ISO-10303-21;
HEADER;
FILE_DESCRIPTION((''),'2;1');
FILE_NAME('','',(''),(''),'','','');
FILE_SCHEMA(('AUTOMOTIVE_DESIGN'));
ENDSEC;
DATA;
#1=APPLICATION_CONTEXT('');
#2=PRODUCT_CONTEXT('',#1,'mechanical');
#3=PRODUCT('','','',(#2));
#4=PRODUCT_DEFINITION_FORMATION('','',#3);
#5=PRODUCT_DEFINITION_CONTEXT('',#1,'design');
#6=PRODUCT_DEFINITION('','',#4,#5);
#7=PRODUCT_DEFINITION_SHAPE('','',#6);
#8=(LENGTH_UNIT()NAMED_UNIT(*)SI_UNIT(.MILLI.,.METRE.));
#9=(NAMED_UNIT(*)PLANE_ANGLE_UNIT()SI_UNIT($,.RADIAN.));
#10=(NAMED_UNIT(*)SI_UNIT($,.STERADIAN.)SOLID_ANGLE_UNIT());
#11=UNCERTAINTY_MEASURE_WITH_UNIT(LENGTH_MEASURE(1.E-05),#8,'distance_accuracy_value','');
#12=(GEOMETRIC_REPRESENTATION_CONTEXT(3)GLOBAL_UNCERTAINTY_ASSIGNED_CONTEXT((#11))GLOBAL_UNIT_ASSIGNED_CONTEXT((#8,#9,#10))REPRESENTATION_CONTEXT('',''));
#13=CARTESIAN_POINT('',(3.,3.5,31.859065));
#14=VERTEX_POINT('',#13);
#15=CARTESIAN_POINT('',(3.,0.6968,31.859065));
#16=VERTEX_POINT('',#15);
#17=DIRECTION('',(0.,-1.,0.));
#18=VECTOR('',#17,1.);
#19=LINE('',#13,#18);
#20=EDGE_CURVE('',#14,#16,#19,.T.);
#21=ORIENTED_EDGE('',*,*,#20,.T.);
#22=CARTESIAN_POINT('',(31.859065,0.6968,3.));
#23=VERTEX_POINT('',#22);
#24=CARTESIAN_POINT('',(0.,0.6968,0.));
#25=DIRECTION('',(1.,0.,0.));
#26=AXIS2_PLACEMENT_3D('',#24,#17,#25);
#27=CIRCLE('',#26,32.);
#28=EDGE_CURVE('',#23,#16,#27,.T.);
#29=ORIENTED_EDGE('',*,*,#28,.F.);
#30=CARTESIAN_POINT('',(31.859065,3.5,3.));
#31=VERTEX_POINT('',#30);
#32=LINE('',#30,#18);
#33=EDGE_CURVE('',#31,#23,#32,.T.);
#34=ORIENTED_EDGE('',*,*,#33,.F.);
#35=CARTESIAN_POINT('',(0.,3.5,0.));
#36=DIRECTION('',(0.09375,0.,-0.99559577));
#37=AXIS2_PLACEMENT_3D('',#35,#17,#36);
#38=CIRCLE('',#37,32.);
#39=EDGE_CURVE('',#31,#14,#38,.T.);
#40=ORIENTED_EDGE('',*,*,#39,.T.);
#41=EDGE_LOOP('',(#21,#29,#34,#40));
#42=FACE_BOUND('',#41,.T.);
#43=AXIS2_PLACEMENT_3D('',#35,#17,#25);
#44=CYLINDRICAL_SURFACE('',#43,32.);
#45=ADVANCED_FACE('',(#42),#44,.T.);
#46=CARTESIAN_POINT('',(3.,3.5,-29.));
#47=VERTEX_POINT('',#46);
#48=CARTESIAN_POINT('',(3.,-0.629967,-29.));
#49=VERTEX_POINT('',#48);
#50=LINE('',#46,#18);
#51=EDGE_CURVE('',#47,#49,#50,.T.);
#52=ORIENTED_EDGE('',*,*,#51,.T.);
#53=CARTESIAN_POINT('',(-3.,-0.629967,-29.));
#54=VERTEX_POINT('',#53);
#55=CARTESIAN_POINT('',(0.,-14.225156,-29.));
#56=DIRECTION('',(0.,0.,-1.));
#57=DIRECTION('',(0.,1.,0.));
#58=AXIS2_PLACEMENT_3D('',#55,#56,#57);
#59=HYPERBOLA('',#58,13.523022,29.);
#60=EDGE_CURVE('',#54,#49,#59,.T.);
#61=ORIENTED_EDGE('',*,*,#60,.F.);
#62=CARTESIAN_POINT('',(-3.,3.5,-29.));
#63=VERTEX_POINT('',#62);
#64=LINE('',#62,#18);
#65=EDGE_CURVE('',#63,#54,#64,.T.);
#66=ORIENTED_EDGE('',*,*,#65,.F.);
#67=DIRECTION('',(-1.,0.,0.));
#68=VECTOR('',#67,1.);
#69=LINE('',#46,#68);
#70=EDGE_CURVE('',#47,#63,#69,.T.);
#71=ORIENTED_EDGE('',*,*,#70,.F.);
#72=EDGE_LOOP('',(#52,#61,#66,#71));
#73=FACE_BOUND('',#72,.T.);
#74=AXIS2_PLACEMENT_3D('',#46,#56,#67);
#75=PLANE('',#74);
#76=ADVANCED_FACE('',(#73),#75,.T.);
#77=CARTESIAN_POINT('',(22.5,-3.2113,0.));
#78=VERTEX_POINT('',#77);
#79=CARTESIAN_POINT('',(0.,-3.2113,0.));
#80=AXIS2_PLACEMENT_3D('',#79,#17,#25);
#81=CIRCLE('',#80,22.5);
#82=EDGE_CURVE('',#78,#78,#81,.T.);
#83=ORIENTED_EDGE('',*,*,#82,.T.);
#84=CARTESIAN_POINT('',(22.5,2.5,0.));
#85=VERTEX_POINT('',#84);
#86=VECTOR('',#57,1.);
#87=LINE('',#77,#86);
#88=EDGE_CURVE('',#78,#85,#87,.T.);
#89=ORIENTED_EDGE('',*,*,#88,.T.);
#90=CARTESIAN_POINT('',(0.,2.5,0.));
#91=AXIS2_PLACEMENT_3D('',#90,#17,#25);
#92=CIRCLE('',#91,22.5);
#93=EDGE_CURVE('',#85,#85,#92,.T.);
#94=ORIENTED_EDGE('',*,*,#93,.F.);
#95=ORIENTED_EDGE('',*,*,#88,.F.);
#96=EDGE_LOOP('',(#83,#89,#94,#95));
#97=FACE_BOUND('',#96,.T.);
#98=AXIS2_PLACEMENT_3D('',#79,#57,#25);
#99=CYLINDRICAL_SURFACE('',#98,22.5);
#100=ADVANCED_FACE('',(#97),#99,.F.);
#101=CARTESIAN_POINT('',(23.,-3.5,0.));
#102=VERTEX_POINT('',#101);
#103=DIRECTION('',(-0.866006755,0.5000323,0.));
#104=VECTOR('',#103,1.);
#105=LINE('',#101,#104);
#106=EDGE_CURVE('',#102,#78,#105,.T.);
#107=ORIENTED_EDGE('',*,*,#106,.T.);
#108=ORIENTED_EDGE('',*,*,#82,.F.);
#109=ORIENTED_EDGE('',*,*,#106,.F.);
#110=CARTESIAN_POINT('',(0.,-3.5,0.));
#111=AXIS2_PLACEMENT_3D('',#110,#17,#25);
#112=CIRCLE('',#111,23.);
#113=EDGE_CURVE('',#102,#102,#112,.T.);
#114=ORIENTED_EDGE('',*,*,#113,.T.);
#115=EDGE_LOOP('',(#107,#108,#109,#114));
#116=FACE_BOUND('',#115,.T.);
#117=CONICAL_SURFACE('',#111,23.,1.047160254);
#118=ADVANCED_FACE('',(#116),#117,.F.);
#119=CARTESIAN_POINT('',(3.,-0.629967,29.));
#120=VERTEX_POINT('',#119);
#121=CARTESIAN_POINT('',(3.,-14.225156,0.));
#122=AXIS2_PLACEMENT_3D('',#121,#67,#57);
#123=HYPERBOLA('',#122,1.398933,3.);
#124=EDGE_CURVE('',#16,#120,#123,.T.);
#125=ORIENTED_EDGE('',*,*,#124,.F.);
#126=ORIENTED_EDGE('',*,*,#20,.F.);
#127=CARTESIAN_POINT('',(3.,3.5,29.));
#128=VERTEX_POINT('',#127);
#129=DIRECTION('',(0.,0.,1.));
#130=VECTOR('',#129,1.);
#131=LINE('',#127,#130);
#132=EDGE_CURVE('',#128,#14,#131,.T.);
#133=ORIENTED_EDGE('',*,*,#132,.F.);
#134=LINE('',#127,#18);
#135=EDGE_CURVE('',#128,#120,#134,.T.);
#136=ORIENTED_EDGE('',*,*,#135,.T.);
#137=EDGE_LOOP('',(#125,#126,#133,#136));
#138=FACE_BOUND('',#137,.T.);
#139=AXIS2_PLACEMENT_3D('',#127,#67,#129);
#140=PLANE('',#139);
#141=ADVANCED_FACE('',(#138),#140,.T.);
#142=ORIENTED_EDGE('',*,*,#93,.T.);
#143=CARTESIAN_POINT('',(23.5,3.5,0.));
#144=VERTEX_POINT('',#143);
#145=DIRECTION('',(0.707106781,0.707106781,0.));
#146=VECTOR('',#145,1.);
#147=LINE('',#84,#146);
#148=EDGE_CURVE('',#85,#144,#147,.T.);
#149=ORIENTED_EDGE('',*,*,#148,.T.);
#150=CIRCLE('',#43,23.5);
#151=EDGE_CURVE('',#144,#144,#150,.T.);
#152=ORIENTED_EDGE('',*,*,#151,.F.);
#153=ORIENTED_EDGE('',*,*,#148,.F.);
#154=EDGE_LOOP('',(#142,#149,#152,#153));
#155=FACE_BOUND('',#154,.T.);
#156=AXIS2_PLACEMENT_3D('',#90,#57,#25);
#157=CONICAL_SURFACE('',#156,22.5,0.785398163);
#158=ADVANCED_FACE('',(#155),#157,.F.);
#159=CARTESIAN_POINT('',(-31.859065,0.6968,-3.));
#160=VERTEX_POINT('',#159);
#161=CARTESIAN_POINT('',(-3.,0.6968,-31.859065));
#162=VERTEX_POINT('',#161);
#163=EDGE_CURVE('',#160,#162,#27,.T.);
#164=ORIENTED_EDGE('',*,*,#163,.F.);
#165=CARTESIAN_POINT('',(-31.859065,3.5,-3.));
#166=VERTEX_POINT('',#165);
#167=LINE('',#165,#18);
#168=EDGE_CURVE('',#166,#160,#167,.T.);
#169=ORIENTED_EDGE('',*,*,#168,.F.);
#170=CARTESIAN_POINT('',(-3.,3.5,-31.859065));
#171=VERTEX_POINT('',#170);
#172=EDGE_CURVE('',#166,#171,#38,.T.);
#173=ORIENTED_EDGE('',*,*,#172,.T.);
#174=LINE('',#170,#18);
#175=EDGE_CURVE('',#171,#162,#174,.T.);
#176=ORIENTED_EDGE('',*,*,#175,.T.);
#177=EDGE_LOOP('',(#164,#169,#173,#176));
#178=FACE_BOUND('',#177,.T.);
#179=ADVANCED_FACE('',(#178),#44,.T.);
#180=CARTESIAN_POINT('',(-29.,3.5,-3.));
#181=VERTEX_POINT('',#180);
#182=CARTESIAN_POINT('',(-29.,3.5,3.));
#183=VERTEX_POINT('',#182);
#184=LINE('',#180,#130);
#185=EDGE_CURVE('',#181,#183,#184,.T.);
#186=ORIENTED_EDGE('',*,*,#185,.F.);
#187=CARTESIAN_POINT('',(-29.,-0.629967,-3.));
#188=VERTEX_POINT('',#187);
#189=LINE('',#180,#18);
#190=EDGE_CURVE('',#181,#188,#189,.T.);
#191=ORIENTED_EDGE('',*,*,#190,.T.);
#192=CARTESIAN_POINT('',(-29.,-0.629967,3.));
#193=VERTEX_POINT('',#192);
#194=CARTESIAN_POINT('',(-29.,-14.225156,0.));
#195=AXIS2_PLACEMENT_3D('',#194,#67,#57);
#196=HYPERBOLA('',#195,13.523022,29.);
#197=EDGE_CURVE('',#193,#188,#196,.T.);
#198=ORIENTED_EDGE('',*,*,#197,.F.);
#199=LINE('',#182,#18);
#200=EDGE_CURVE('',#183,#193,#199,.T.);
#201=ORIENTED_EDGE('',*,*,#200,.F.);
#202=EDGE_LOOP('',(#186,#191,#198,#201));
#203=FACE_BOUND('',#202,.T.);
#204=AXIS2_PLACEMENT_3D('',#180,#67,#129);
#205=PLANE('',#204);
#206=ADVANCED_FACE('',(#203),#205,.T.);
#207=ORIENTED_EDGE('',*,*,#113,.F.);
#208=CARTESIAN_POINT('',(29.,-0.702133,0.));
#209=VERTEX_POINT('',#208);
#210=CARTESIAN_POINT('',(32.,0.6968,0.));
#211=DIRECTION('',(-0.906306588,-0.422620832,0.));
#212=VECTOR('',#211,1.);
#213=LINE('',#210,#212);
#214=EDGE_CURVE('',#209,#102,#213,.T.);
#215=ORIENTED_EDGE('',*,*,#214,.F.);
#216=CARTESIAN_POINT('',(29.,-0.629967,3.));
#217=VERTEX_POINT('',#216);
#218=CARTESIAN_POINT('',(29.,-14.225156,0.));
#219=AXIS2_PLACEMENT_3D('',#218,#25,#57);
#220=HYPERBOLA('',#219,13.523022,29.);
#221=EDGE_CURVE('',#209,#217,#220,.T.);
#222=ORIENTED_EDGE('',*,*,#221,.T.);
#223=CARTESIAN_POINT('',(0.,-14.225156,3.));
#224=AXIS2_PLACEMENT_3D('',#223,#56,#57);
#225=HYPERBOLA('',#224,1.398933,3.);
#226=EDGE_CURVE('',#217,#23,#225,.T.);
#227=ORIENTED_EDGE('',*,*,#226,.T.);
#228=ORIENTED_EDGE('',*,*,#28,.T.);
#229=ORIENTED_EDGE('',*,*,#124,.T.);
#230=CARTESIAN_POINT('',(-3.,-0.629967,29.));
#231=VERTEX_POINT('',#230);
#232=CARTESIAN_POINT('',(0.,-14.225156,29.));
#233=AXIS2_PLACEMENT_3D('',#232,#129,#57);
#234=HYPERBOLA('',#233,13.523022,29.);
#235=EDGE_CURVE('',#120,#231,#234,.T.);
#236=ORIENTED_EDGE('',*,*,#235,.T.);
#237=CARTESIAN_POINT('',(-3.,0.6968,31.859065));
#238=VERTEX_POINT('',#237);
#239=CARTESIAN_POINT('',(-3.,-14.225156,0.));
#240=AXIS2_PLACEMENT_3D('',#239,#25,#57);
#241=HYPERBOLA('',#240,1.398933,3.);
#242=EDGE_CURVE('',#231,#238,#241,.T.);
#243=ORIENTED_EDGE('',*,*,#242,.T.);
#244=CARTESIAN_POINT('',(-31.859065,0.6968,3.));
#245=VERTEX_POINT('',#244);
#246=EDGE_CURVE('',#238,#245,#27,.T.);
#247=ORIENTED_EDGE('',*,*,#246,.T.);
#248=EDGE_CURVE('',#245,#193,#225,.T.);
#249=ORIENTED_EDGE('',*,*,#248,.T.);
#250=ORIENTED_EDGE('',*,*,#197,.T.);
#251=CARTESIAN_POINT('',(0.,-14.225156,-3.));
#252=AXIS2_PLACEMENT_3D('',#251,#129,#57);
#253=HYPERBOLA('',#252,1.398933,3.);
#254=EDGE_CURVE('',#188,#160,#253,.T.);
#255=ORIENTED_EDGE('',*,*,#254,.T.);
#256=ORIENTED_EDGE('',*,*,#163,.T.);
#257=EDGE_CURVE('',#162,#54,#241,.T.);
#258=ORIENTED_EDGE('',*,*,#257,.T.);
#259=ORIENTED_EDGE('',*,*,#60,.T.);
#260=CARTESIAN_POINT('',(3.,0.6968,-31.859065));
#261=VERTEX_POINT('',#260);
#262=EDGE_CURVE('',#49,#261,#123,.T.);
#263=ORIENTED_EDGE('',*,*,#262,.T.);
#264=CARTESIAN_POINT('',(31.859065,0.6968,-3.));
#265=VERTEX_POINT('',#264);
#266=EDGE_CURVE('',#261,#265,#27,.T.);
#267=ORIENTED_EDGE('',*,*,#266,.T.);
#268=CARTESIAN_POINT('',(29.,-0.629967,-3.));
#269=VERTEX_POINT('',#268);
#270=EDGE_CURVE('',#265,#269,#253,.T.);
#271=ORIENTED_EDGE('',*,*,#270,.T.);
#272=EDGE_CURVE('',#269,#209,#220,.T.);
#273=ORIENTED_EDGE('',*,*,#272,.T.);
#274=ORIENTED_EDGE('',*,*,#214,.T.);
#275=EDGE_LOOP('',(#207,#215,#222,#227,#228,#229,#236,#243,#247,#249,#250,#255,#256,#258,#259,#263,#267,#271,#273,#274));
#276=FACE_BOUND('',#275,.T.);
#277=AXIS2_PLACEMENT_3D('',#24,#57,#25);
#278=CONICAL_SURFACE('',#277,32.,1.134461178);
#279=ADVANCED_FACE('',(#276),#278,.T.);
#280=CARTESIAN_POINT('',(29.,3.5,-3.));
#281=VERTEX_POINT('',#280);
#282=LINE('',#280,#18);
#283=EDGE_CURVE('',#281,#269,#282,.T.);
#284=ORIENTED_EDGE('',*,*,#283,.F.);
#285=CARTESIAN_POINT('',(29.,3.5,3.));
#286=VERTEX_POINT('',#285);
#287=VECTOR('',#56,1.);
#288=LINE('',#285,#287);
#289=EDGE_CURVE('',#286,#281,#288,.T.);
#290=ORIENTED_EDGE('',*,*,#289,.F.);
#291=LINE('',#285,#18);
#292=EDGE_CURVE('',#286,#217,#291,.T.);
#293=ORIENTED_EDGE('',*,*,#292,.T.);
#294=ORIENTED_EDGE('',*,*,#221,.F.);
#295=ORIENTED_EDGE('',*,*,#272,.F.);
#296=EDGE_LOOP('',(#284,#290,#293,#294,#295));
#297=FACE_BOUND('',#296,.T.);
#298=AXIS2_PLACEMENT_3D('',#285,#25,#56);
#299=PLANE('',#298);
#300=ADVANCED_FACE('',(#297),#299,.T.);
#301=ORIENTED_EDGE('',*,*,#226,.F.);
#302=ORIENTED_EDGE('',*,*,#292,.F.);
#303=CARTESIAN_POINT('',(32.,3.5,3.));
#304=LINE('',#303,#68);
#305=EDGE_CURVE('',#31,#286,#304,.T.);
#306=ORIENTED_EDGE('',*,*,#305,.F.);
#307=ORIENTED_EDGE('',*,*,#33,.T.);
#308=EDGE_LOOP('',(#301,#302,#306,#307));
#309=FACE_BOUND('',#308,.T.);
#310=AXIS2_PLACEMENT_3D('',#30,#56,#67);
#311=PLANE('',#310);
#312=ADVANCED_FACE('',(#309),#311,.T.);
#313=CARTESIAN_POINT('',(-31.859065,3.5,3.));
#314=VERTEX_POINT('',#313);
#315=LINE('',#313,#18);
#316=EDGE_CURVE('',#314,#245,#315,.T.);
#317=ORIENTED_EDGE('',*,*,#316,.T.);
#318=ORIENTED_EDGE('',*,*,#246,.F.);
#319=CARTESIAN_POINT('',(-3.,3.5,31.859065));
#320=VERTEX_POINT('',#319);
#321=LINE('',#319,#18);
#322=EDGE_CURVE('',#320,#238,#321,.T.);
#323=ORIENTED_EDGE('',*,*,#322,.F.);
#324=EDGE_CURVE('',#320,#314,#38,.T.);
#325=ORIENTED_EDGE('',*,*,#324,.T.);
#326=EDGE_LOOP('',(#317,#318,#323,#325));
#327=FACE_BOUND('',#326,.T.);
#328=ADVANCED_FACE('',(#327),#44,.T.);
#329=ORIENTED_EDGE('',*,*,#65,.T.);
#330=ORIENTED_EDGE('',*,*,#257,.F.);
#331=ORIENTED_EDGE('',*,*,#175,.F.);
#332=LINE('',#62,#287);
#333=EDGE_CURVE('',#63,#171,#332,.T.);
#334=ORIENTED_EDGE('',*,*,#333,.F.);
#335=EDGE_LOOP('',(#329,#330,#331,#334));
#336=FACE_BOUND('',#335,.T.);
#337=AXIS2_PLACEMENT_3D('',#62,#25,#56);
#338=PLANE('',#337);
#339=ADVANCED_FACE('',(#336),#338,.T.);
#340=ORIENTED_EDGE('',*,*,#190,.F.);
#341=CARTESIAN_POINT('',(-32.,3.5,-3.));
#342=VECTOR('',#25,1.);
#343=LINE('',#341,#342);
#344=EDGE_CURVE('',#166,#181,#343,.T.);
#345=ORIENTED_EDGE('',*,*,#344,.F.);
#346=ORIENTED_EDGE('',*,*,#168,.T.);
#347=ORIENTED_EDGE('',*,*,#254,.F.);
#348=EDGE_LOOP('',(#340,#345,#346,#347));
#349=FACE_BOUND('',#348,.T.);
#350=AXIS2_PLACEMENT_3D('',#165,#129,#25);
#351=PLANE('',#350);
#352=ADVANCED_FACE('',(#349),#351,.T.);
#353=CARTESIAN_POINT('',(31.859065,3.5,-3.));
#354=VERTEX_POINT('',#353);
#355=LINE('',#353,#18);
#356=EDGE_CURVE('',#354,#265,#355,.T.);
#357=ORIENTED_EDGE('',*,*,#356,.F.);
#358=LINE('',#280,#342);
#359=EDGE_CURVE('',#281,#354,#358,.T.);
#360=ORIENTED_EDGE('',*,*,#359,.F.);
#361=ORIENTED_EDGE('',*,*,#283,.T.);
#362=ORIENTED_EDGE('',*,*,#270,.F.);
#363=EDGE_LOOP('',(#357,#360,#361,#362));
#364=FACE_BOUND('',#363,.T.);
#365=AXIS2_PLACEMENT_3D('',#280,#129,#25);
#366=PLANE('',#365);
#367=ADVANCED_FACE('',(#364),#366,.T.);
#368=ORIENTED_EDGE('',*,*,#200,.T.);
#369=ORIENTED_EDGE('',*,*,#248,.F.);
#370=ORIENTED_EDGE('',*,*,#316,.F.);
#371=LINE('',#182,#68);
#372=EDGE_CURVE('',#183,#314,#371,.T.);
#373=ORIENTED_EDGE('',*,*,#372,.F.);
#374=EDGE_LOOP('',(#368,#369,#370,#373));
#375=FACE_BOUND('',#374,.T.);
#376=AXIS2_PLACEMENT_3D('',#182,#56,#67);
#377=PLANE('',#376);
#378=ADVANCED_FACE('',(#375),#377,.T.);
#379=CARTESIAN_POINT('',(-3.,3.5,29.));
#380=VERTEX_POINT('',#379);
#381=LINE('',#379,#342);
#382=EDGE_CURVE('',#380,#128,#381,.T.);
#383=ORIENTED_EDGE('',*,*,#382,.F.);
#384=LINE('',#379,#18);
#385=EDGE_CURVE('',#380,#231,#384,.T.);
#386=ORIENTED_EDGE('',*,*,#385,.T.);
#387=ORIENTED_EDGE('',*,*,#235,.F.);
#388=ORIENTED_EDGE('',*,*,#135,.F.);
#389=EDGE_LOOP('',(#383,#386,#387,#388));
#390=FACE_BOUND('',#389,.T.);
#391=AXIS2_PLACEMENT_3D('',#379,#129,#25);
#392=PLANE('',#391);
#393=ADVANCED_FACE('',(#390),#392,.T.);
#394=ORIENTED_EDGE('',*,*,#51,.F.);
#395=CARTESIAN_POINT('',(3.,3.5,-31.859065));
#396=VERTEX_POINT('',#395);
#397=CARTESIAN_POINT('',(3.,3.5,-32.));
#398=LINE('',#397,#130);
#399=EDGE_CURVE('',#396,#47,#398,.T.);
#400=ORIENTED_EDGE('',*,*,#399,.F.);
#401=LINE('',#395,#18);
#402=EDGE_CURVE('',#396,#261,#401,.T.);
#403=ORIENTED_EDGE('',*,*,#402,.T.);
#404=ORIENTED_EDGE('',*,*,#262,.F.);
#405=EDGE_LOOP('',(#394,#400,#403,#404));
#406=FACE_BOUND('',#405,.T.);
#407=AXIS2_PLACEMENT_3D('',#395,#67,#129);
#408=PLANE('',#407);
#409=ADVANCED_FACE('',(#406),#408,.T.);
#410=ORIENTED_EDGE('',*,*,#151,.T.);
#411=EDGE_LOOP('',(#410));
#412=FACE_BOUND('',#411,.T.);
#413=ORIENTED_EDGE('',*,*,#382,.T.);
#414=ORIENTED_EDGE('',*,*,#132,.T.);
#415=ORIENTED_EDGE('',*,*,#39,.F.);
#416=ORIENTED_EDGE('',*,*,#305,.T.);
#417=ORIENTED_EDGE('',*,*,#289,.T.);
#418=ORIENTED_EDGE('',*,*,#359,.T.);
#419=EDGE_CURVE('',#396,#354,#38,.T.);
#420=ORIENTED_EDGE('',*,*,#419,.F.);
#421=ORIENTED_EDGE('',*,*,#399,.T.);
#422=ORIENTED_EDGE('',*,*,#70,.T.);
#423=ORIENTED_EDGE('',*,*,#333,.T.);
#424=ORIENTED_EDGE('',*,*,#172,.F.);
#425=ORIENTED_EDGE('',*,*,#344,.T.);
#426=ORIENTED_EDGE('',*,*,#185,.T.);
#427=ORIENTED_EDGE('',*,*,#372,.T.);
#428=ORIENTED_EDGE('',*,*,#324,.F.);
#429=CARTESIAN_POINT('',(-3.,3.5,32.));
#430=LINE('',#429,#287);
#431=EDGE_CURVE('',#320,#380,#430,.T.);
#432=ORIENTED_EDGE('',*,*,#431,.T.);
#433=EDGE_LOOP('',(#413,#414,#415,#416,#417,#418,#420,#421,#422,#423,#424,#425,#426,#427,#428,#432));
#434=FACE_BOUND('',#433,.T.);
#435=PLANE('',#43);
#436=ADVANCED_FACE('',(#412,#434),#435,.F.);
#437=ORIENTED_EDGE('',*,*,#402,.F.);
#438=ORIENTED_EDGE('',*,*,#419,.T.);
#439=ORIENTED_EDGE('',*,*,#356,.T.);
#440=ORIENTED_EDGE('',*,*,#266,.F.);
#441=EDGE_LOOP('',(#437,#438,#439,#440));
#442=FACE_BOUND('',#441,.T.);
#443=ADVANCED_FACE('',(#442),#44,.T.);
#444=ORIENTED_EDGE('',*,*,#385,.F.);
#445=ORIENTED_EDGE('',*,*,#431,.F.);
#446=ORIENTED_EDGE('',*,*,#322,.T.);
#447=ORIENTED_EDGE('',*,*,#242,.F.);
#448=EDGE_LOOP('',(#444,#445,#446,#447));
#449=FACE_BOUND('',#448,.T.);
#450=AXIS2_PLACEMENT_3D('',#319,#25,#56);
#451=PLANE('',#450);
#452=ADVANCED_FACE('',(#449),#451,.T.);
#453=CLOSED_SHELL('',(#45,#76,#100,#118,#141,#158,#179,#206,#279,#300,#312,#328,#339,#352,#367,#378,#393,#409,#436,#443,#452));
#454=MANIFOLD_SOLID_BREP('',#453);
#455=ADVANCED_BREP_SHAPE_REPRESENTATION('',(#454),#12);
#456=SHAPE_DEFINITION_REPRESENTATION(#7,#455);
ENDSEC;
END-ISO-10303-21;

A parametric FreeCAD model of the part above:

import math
import FreeCAD as App
import Part
import Sketcher
from FreeCAD import Vector
Q = App.Units.Quantity

doc = App.newDocument("Part")
body = doc.addObject("PartDesign::Body", "Body")

sketch1 = body.newObject("Sketcher::SketchObject", "Sketch")
sketch1.AttachmentSupport = (doc.getObject("XY_Plane"), [""])
sketch1.MapMode = "FlatFace"
sketch1.addGeometry([
    Part.LineSegment(Vector(22.5, -3.2, 0), Vector(23, -3.5, 0)),
    Part.LineSegment(Vector(23, -3.5, 0), Vector(32, 0.7, 0)),
    Part.LineSegment(Vector(32, 0.7, 0), Vector(32, 3.5, 0)),
    Part.LineSegment(Vector(32, 3.5, 0), Vector(23.5, 3.5, 0)),
    Part.LineSegment(Vector(23.5, 3.5, 0), Vector(22.5, 2.5, 0)),
    Part.LineSegment(Vector(22.5, 2.5, 0), Vector(22.5, -3.2, 0)),
], False)
sketch1.addConstraint([
    Sketcher.Constraint("Coincident", 0, 2, 1, 1),
    Sketcher.Constraint("Coincident", 1, 2, 2, 1),
    Sketcher.Constraint("Coincident", 2, 2, 3, 1),
    Sketcher.Constraint("Coincident", 3, 2, 4, 1),
    Sketcher.Constraint("Coincident", 4, 2, 5, 1),
    Sketcher.Constraint("Coincident", 5, 2, 0, 1),
    Sketcher.Constraint("Vertical", 2),
    Sketcher.Constraint("Horizontal", 3),
    Sketcher.Constraint("Vertical", 5),
    Sketcher.Constraint("Angle", 1, Q("25.0002 deg")),
    Sketcher.Constraint("DistanceY", 0, 2, 2, 2, 7.0),
    Sketcher.Constraint("DistanceX", 4, 2, 3, 2, 1.0),
    Sketcher.Constraint("DistanceY", 4, 2, 3, 2, 1.0),
    Sketcher.Constraint("DistanceX", 3, 2, 3, 1, 8.5),
    Sketcher.Constraint("DistanceX", -1, 1, 0, 2, 23.0),
    Sketcher.Constraint("DistanceX", -1, 1, 1, 2, 32.0),
    Sketcher.Constraint("DistanceY", 0, 2, -1, 1, 3.5),
    Sketcher.Constraint("DistanceY", 5, 2, 5, 1, 5.7113),
])
revolution = body.newObject("PartDesign::Revolution", "Revolution")
revolution.Profile = sketch1
revolution.ReferenceAxis = (sketch1, ["V_Axis"])
revolution.Angle = 360

sketch2 = body.newObject("Sketcher::SketchObject", "Sketch001")
sketch2.AttachmentSupport = (doc.getObject("XZ_Plane"), [""])
sketch2.MapMode = "FlatFace"
sketch2.AttachmentOffset = App.Placement(Vector(0, 0, -3.5), App.Rotation())
sketch2.addGeometry([
    Part.ArcOfCircle(Part.Circle(Vector(0, 0, 0), Vector(0, 0, 1), 32), math.radians(-95.38), math.radians(-84.62)),
    Part.LineSegment(Vector(-3, -31.9, 0), Vector(-3, -29, 0)),
    Part.LineSegment(Vector(-3, -29, 0), Vector(3, -29, 0)),
    Part.LineSegment(Vector(3, -29, 0), Vector(3, -31.9, 0)),
], False)
sketch2.addConstraint([
    Sketcher.Constraint("Coincident", 0, 1, 1, 1),
    Sketcher.Constraint("Coincident", 1, 2, 2, 1),
    Sketcher.Constraint("Coincident", 2, 2, 3, 1),
    Sketcher.Constraint("Coincident", 3, 2, 0, 2),
    Sketcher.Constraint("Vertical", 1),
    Sketcher.Constraint("Horizontal", 2),
    Sketcher.Constraint("Vertical", 3),
    Sketcher.Constraint("Coincident", 0, 3, -1, 1),
    Sketcher.Constraint("Horizontal", 0, 1, 3, 2),
    Sketcher.Constraint("DistanceX", 2, 1, 2, 2, 6.0),
    Sketcher.Constraint("Radius", 0, 32.0),
    Sketcher.Constraint("DistanceY", 1, 2, -1, 1, 29.0),
])
pocket1 = body.newObject("PartDesign::Pocket", "Pocket")
pocket1.Profile = sketch2
pocket1.Type = "ThroughAll"
pocket1.Reversed = True
doc.recompute()

polarpattern = body.newObject("PartDesign::PolarPattern", "PolarPattern")
polarpattern.Originals = [pocket1]
polarpattern.Axis = (doc.getObject("Y_Axis"), [""])
polarpattern.Angle = 360
polarpattern.Occurrences = 4
body.Tip = polarpattern

doc.recompute()
